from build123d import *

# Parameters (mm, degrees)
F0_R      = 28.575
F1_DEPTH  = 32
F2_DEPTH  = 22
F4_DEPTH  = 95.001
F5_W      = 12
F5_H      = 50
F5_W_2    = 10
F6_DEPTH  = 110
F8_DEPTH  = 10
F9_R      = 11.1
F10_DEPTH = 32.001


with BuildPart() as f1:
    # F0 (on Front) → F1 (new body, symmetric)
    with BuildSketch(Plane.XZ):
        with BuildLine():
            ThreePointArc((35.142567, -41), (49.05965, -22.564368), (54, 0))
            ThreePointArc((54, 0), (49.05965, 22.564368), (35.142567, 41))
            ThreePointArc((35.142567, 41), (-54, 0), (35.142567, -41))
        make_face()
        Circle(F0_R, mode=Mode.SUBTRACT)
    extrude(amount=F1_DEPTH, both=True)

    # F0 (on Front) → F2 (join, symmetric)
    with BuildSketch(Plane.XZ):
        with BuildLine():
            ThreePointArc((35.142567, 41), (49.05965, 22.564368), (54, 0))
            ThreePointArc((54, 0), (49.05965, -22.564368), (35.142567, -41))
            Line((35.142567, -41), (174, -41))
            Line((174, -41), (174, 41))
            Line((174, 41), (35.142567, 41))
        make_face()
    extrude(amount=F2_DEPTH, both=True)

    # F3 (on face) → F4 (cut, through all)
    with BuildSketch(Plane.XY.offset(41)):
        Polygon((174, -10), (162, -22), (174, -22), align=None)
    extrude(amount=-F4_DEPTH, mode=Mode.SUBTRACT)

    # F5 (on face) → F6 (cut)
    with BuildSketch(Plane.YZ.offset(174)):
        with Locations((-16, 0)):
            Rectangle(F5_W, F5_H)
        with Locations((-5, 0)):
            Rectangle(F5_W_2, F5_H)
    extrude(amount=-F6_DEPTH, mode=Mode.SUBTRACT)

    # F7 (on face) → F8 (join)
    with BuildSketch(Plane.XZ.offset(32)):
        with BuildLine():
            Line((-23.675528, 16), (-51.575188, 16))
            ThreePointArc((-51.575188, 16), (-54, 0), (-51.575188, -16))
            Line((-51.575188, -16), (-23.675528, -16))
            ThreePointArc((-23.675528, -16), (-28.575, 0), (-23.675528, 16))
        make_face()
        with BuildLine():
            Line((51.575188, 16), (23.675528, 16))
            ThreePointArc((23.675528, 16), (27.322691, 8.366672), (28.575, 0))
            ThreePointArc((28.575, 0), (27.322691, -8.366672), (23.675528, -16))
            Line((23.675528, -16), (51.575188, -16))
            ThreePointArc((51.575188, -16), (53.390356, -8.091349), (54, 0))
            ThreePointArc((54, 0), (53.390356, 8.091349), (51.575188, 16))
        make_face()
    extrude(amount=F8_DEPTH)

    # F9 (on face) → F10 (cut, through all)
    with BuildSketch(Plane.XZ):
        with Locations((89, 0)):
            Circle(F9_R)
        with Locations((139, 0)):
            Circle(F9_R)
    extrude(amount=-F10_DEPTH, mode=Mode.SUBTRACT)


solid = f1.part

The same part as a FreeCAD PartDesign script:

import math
import FreeCAD as App
import Part
import Sketcher

doc = App.newDocument("Part")
body = doc.addObject("PartDesign::Body", "Body")

# Sketch on XZ plane
sketch1 = body.newObject("Sketcher::SketchObject", "Sketch")
sketch1.AttachmentSupport = (doc.getObject("XZ_Plane"), [""])
sketch1.MapMode = "FlatFace"
sketch1.addGeometry(Part.ArcOfCircle(Part.Circle(App.Vector(0, 0, 0), App.Vector(0, 0, 1), 54), math.radians(-49), math.radians(0)), False)
sketch1.addGeometry(Part.ArcOfCircle(Part.Circle(App.Vector(0, 0, 0), App.Vector(0, 0, 1), 54), math.radians(0), math.radians(49)), False)
sketch1.addGeometry(Part.ArcOfCircle(Part.Circle(App.Vector(0, 0, 0), App.Vector(0, 0, 1), 54), math.radians(49), math.radians(311)), False)
sketch1.addGeometry(Part.Circle(App.Vector(0, 0, 0), App.Vector(0, 0, 1), 29), False)
sketch1.addConstraint(Sketcher.Constraint("Tangent", 0, 2, 1, 1))
sketch1.addConstraint(Sketcher.Constraint("Tangent", 1, 2, 2, 1))
sketch1.addConstraint(Sketcher.Constraint("Tangent", 2, 2, 0, 1))
sketch1.addConstraint(Sketcher.Constraint("Coincident", 0, 3, -1, 1))
sketch1.addConstraint(Sketcher.Constraint("Coincident", 3, 3, -1, 1))
sketch1.addConstraint(Sketcher.Constraint("PointOnObject", 0, 2, -1))
sketch1.addConstraint(Sketcher.Constraint("Vertical", 1, 2, 2, 2))
sketch1.addConstraint(Sketcher.Constraint("Radius", 2, 54.0))
sketch1.addConstraint(Sketcher.Constraint("Diameter", 3, 57.15))
sketch1.addConstraint(Sketcher.Constraint("DistanceY", -1, 1, 1, 2, 41.0))
pad1 = body.newObject("PartDesign::Pad", "Pad")
pad1.Profile = sketch1
pad1.Length = 64
pad1.Midplane = True

# Sketch on XZ plane
sketch2 = body.newObject("Sketcher::SketchObject", "Sketch001")
sketch2.AttachmentSupport = (doc.getObject("XZ_Plane"), [""])
sketch2.MapMode = "FlatFace"
sketch2.addGeometry(Part.ArcOfCircle(Part.Circle(App.Vector(0, 0, 0), App.Vector(0, 0, 1), 54), math.radians(0), math.radians(49)), False)
sketch2.addGeometry(Part.ArcOfCircle(Part.Circle(App.Vector(0, 0, 0), App.Vector(0, 0, 1), 54), math.radians(-49), math.radians(0)), False)
sketch2.addGeometry(Part.LineSegment(App.Vector(35, -41, 0), App.Vector(174, -41, 0)), False)
sketch2.addGeometry(Part.LineSegment(App.Vector(174, -41, 0), App.Vector(174, 41, 0)), False)
sketch2.addGeometry(Part.LineSegment(App.Vector(174, 41, 0), App.Vector(35, 41, 0)), False)
sketch2.addConstraint(Sketcher.Constraint("Tangent", 0, 1, 1, 2))
sketch2.addConstraint(Sketcher.Constraint("Coincident", 1, 1, 2, 1))
sketch2.addConstraint(Sketcher.Constraint("Coincident", 2, 2, 3, 1))
sketch2.addConstraint(Sketcher.Constraint("Coincident", 3, 2, 4, 1))
sketch2.addConstraint(Sketcher.Constraint("Coincident", 4, 2, 0, 2))
sketch2.addConstraint(Sketcher.Constraint("Horizontal", 2))
sketch2.addConstraint(Sketcher.Constraint("Vertical", 3))
sketch2.addConstraint(Sketcher.Constraint("Horizontal", 4))
sketch2.addConstraint(Sketcher.Constraint("Coincident", 0, 3, -1, 1))
sketch2.addConstraint(Sketcher.Constraint("Equal", 0, 1))
sketch2.addConstraint(Sketcher.Constraint("PointOnObject", 0, 1, -1))
sketch2.addConstraint(Sketcher.Constraint("Vertical", 1, 1, 4, 2))
sketch2.addConstraint(Sketcher.Constraint("DistanceY", 3, 1, 3, 2, 82.0))
sketch2.addConstraint(Sketcher.Constraint("DistanceX", -1, 1, 0, 1, 54.0))
sketch2.addConstraint(Sketcher.Constraint("DistanceX", -1, 1, 2, 2, 174.0))
pad2 = body.newObject("PartDesign::Pad", "Pad001")
pad2.Profile = sketch2
pad2.Length = 44
pad2.Midplane = True

# Sketch on XY plane
sketch3 = body.newObject("Sketcher::SketchObject", "Sketch002")
sketch3.AttachmentSupport = (doc.getObject("XY_Plane"), [""])
sketch3.MapMode = "FlatFace"
sketch3.AttachmentOffset = App.Placement(App.Vector(0, 0, 41), App.Rotation())
sketch3.addGeometry(Part.LineSegment(App.Vector(174, -10, 0), App.Vector(162, -22, 0)), False)
sketch3.addGeometry(Part.LineSegment(App.Vector(162, -22, 0), App.Vector(174, -22, 0)), False)
sketch3.addGeometry(Part.LineSegment(App.Vector(174, -22, 0), App.Vector(174, -10, 0)), False)
sketch3.addConstraint(Sketcher.Constraint("Coincident", 0, 2, 1, 1))
sketch3.addConstraint(Sketcher.Constraint("Coincident", 1, 2, 2, 1))
sketch3.addConstraint(Sketcher.Constraint("Coincident", 2, 2, 0, 1))
sketch3.addConstraint(Sketcher.Constraint("Horizontal", 1))
sketch3.addConstraint(Sketcher.Constraint("Vertical", 2))
sketch3.addConstraint(Sketcher.Constraint("Equal", 1, 2))
sketch3.addConstraint(Sketcher.Constraint("DistanceX", 1, 1, 1, 2, 12.0))
sketch3.addConstraint(Sketcher.Constraint("DistanceX", -1, 1, 0, 2, 162.0))
sketch3.addConstraint(Sketcher.Constraint("DistanceY", 0, 2, -1, 1, 22.0))
pocket1 = body.newObject("PartDesign::Pocket", "Pocket")
pocket1.Profile = sketch3
pocket1.Type = "ThroughAll"

# Sketch on YZ plane
sketch4 = body.newObject("Sketcher::SketchObject", "Sketch003")
sketch4.AttachmentSupport = (doc.getObject("YZ_Plane"), [""])
sketch4.MapMode = "FlatFace"
sketch4.AttachmentOffset = App.Placement(App.Vector(0, 0, 174), App.Rotation())
sketch4.addGeometry(Part.LineSegment(App.Vector(-22, 25, 0), App.Vector(-22, -25, 0)), False)
sketch4.addGeometry(Part.LineSegment(App.Vector(-22, -25, 0), App.Vector(0, -25, 0)), False)
sketch4.addGeometry(Part.LineSegment(App.Vector(0, -25, 0), App.Vector(0, 25, 0)), False)
sketch4.addGeometry(Part.LineSegment(App.Vector(0, 25, 0), App.Vector(-22, 25, 0)), False)
sketch4.addConstraint(Sketcher.Constraint("Coincident", 0, 2, 1, 1))
sketch4.addConstraint(Sketcher.Constraint("Coincident", 1, 2, 2, 1))
sketch4.addConstraint(Sketcher.Constraint("Coincident", 2, 2, 3, 1))
sketch4.addConstraint(Sketcher.Constraint("Coincident", 3, 2, 0, 1))
sketch4.addConstraint(Sketcher.Constraint("Vertical", 0))
sketch4.addConstraint(Sketcher.Constraint("Horizontal", 1))
sketch4.addConstraint(Sketcher.Constraint("Vertical", 2))
sketch4.addConstraint(Sketcher.Constraint("Horizontal", 3))
sketch4.addConstraint(Sketcher.Constraint("Symmetric", 1, 2, 2, 2, -1, 1))
sketch4.addConstraint(Sketcher.Constraint("DistanceX", 1, 1, 1, 2, 22.0))
sketch4.addConstraint(Sketcher.Constraint("DistanceY", 0, 2, 0, 1, 50.0))
pocket2 = body.newObject("PartDesign::Pocket", "Pocket001")
pocket2.Profile = sketch4
pocket2.Length = 110

# Sketch on XZ plane
sketch5 = body.newObject("Sketcher::SketchObject", "Sketch004")
sketch5.AttachmentSupport = (doc.getObject("XZ_Plane"), [""])
sketch5.MapMode = "FlatFace"
sketch5.AttachmentOffset = App.Placement(App.Vector(0, 0, 32), App.Rotation())
sketch5.addGeometry(Part.LineSegment(App.Vector(-23.675528, 16, 0), App.Vector(-51.575188, 16, 0)), False)
sketch5.addGeometry(Part.ArcOfCircle(Part.Circle(App.Vector(0.000004, 0, 0), App.Vector(0, 0, 1), 54.000004), math.radians(162.764716), math.radians(197.235284)), False)
sketch5.addGeometry(Part.LineSegment(App.Vector(-51.575188, -16, 0), App.Vector(-23.675528, -16, 0)), False)
sketch5.addGeometry(Part.ArcOfCircle(Part.Circle(App.Vector(0, 0, 0), App.Vector(0, 0, 1), 28.575), math.radians(145.949043), math.radians(214.050957)), False)
sketch5.addGeometry(Part.LineSegment(App.Vector(51.575188, 16, 0), App.Vector(23.675528, 16, 0)), False)
sketch5.addGeometry(Part.ArcOfCircle(Part.Circle(App.Vector(0.000007, 0.000002, 0), App.Vector(0, 0, 1), 28.574993), math.radians(-0.000004), math.radians(34.050962)), False)
sketch5.addGeometry(Part.ArcOfCircle(Part.Circle(App.Vector(0.000007, -0.000002, 0), App.Vector(0, 0, 1), 28.574993), math.radians(-34.050962), math.radians(0.000004)), False)
sketch5.addGeometry(Part.LineSegment(App.Vector(23.675528, -16, 0), App.Vector(51.575188, -16, 0)), False)
sketch5.addGeometry(Part.ArcOfCircle(Part.Circle(App.Vector(0.000027, -0.000005, 0), App.Vector(0, 0, 1), 53.999973), math.radians(-17.235289), math.radians(0.000005)), False)
sketch5.addGeometry(Part.ArcOfCircle(Part.Circle(App.Vector(0.000027, 0.000005, 0), App.Vector(0, 0, 1), 53.999973), math.radians(-0.000005), math.radians(17.235289)), False)
sketch5.addConstraint(Sketcher.Constraint("Coincident", 0, 2, 1, 1))
sketch5.addConstraint(Sketcher.Constraint("Coincident", 1, 2, 2, 1))
sketch5.addConstraint(Sketcher.Constraint("Coincident", 2, 2, 3, 2))
sketch5.addConstraint(Sketcher.Constraint("Coincident", 3, 1, 0, 1))
sketch5.addConstraint(Sketcher.Constraint("Coincident", 4, 2, 5, 2))
sketch5.addConstraint(Sketcher.Constraint("Coincident", 5, 1, 6, 2))
sketch5.addConstraint(Sketcher.Constraint("Coincident", 6, 1, 7, 1))
sketch5.addConstraint(Sketcher.Constraint("Coincident", 7, 2, 8, 1))
sketch5.addConstraint(Sketcher.Constraint("Coincident", 8, 2, 9, 1))
sketch5.addConstraint(Sketcher.Constraint("Coincident", 9, 2, 4, 1))
sketch5.addConstraint(Sketcher.Constraint("Horizontal", 0))
sketch5.addConstraint(Sketcher.Constraint("Horizontal", 2))
sketch5.addConstraint(Sketcher.Constraint("Horizontal", 4))
sketch5.addConstraint(Sketcher.Constraint("Horizontal", 7))
sketch5.addConstraint(Sketcher.Constraint("Coincident", 1, 3, -1, 1))
sketch5.addConstraint(Sketcher.Constraint("Coincident", 3, 3, -1, 1))
sketch5.addConstraint(Sketcher.Constraint("Coincident", 5, 3, -1, 1))
sketch5.addConstraint(Sketcher.Constraint("Coincident", 6, 3, -1, 1))
sketch5.addConstraint(Sketcher.Constraint("Coincident", 9, 3, 8, 3))
sketch5.addConstraint(Sketcher.Constraint("PointOnObject", 5, 1, -1))
sketch5.addConstraint(Sketcher.Constraint("PointOnObject", 8, 2, -1))
sketch5.addConstraint(Sketcher.Constraint("DistanceY", -1, 1, 0, 2, 16.0))
sketch5.addConstraint(Sketcher.Constraint("DistanceY", 1, 2, -1, 1, 16.0))
sketch5.addConstraint(Sketcher.Constraint("DistanceY", -1, 1, 4, 2, 16.0))
sketch5.addConstraint(Sketcher.Constraint("DistanceY", 6, 1, -1, 1, 16.0))
sketch5.addConstraint(Sketcher.Constraint("DistanceX", -1, 1, 8, 2, 54.0))
sketch5.addConstraint(Sketcher.Constraint("Radius", 3, 28.575))
sketch5.addConstraint(Sketcher.Constraint("DistanceX", -1, 1, 5, 1, 28.575))
sketch5.addConstraint(Sketcher.Constraint("Radius", 1, 54.000004))
sketch5.addConstraint(Sketcher.Constraint("Radius", 8, 53.999973))
sketch5.addConstraint(Sketcher.Constraint("DistanceX", 4, 2, 4, 1, 27.89966))
pad3 = body.newObject("PartDesign::Pad", "Pad002")
pad3.Profile = sketch5
pad3.Length = 10

# Sketch on XZ plane
sketch6 = body.newObject("Sketcher::SketchObject", "Sketch005")
sketch6.AttachmentSupport = (doc.getObject("XZ_Plane"), [""])
sketch6.MapMode = "FlatFace"
sketch6.addGeometry(Part.Circle(App.Vector(89, 0, 0), App.Vector(0, 0, 1), 11), False)
sketch6.addGeometry(Part.Circle(App.Vector(139, 0, 0), App.Vector(0, 0, 1), 11), False)
sketch6.addConstraint(Sketcher.Constraint("Equal", 0, 1))
sketch6.addConstraint(Sketcher.Constraint("PointOnObject", 0, 3, -1))
sketch6.addConstraint(Sketcher.Constraint("PointOnObject", 1, 3, -1))
sketch6.addConstraint(Sketcher.Constraint("Diameter", 0, 22.2))
sketch6.addConstraint(Sketcher.Constraint("DistanceX", -1, 1, 0, 3, 89.0))
sketch6.addConstraint(Sketcher.Constraint("DistanceX", -1, 1, 1, 3, 139.0))
pocket3 = body.newObject("PartDesign::Pocket", "Pocket002")
pocket3.Profile = sketch6
pocket3.Type = "ThroughAll"

doc.recompute()
